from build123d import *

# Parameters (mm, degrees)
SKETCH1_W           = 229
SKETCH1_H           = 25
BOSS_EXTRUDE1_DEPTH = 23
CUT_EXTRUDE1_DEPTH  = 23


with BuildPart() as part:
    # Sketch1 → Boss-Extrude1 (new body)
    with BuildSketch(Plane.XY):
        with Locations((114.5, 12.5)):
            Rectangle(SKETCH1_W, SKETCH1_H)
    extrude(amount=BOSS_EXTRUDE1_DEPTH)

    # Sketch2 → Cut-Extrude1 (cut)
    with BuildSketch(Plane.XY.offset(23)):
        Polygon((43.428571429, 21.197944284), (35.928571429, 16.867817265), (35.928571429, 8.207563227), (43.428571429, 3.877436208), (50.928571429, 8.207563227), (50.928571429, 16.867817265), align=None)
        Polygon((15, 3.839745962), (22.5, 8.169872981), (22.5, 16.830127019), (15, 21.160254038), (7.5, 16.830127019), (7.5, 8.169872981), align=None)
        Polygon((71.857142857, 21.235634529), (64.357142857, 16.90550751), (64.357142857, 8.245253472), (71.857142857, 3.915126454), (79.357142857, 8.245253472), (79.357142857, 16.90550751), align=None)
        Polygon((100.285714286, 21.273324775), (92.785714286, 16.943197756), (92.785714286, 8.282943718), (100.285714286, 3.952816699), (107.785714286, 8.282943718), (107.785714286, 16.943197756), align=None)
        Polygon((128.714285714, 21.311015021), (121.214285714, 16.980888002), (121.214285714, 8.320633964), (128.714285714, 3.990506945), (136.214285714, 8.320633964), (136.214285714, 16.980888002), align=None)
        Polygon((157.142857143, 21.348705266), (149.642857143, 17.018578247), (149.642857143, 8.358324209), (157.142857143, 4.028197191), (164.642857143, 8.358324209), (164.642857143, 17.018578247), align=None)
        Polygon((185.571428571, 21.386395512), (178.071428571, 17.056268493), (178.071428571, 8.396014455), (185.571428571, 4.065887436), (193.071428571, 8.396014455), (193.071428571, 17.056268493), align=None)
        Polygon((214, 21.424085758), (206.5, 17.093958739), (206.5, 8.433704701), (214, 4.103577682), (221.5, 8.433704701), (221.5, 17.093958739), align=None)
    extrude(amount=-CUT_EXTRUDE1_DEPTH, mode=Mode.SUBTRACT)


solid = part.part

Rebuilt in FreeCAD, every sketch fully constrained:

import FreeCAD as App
import Part
import Sketcher
Q = App.Units.Quantity


def add_polygon(sketch, points):
    """Adds a closed chain of lines whose ends are joined by coincident constraints."""
    first, n = sketch.GeometryCount, len(points)
    for a, b in zip(points, points[1:] + points[:1]):
        sketch.addGeometry(Part.LineSegment(App.Vector(*a, 0), App.Vector(*b, 0)), False)
    for i in range(n):
        sketch.addConstraint(Sketcher.Constraint("Coincident", first + i, 2, first + (i + 1) % n, 1))

doc = App.newDocument("Part")
body = doc.addObject("PartDesign::Body", "Body")

sketch1 = doc.addObject("Sketcher::SketchObject", "Sketch")
body.addObject(sketch1)
sketch1.AttachmentSupport = (doc.XY_Plane, [""])
sketch1.MapMode = "FlatFace"
add_polygon(sketch1, [(0, 25), (0, 0), (229, 0), (229, 25)])
sketch1.addConstraint([
    Sketcher.Constraint("Vertical", 0),
    Sketcher.Constraint("Horizontal", 1),
    Sketcher.Constraint("Vertical", 2),
    Sketcher.Constraint("Horizontal", 3),
    Sketcher.Constraint("Coincident", 0, 2, -1, 1),
    Sketcher.Constraint("DistanceX", 1, 1, 1, 2, Q("229 mm")),
    Sketcher.Constraint("DistanceY", 0, 2, 0, 1, Q("25 mm")),
])
pad1 = doc.addObject("PartDesign::Pad", "Pad")
body.addObject(pad1)
pad1.Profile = sketch1
pad1.Length = 23

sketch2 = doc.addObject("Sketcher::SketchObject", "Sketch001")
body.addObject(sketch2)
sketch2.AttachmentSupport = (doc.XY_Plane, [""])
sketch2.MapMode = "FlatFace"
sketch2.AttachmentOffset = App.Placement(App.Vector(0, 0, 23), App.Rotation())
add_polygon(sketch2, [(43, 21), (36, 17), (36, 8), (43, 4), (51, 8), (51, 17)])
add_polygon(sketch2, [(15, 4), (22, 8), (22, 17), (15, 21), (8, 17), (8, 8)])
add_polygon(sketch2, [(72, 21), (64, 17), (64, 8), (72, 4), (79, 8), (79, 17)])
add_polygon(sketch2, [(100, 21), (93, 17), (93, 8), (100, 4), (108, 8), (108, 17)])
add_polygon(sketch2, [(129, 21), (121, 17), (121, 8), (129, 4), (136, 8), (136, 17)])
add_polygon(sketch2, [(157, 21), (150, 17), (150, 8), (157, 4), (165, 8), (165, 17)])
add_polygon(sketch2, [(186, 21), (178, 17), (178, 8), (186, 4), (193, 8), (193, 17)])
add_polygon(sketch2, [(214, 21), (206, 17), (206, 8), (214, 4), (222, 8), (222, 17)])
sketch2.addConstraint([
    Sketcher.Constraint("Vertical", 1),
    Sketcher.Constraint("Vertical", 4),
    Sketcher.Constraint("Vertical", 7),
    Sketcher.Constraint("Vertical", 10),
    Sketcher.Constraint("Vertical", 13),
    Sketcher.Constraint("Vertical", 16),
    Sketcher.Constraint("Vertical", 19),
    Sketcher.Constraint("Vertical", 22),
    Sketcher.Constraint("Vertical", 25),
    Sketcher.Constraint("Vertical", 28),
    Sketcher.Constraint("Vertical", 31),
    Sketcher.Constraint("Vertical", 34),
    Sketcher.Constraint("Vertical", 37),
    Sketcher.Constraint("Vertical", 40),
    Sketcher.Constraint("Vertical", 43),
    Sketcher.Constraint("Vertical", 46),
    Sketcher.Constraint("Parallel", 0, 3),
    Sketcher.Constraint("Parallel", 2, 5),
    Sketcher.Constraint("Parallel", 3, 6),
    Sketcher.Constraint("Parallel", 5, 8),
    Sketcher.Constraint("Parallel", 6, 9),
    Sketcher.Constraint("Parallel", 8, 11),
    Sketcher.Constraint("Parallel", 9, 12),
    Sketcher.Constraint("Parallel", 11, 14),
    Sketcher.Constraint("Parallel", 12, 15),
    Sketcher.Constraint("Parallel", 14, 17),
    Sketcher.Constraint("Parallel", 15, 18),
    Sketcher.Constraint("Parallel", 17, 20),
    Sketcher.Constraint("Parallel", 18, 21),
    Sketcher.Constraint("Parallel", 20, 23),
    Sketcher.Constraint("Parallel", 21, 24),
    Sketcher.Constraint("Parallel", 23, 26),
    Sketcher.Constraint("Parallel", 24, 27),
    Sketcher.Constraint("Parallel", 26, 29),
    Sketcher.Constraint("Parallel", 27, 30),
    Sketcher.Constraint("Parallel", 29, 32),
    Sketcher.Constraint("Parallel", 30, 33),
    Sketcher.Constraint("Parallel", 32, 35),
    Sketcher.Constraint("Parallel", 33, 36),
    Sketcher.Constraint("Parallel", 35, 38),
    Sketcher.Constraint("Parallel", 36, 39),
    Sketcher.Constraint("Parallel", 38, 41),
    Sketcher.Constraint("Parallel", 39, 42),
    Sketcher.Constraint("Parallel", 41, 44),
    Sketcher.Constraint("Parallel", 42, 45),
    Sketcher.Constraint("Parallel", 44, 47),
    Sketcher.Constraint("Horizontal", 1, 2, 3, 2),
    Sketcher.Constraint("Horizontal", 0, 2, 4, 2),
    Sketcher.Constraint("Horizontal", 7, 2, 9, 2),
    Sketcher.Constraint("Horizontal", 6, 2, 10, 2),
    Sketcher.Constraint("Horizontal", 13, 2, 15, 2),
    Sketcher.Constraint("Horizontal", 12, 2, 16, 2),
    Sketcher.Constraint("Horizontal", 19, 2, 21, 2),
    Sketcher.Constraint("Horizontal", 18, 2, 22, 2),
    Sketcher.Constraint("Horizontal", 25, 2, 27, 2),
    Sketcher.Constraint("Horizontal", 24, 2, 28, 2),
    Sketcher.Constraint("Horizontal", 31, 2, 33, 2),
    Sketcher.Constraint("Horizontal", 30, 2, 34, 2),
    Sketcher.Constraint("Horizontal", 37, 2, 39, 2),
    Sketcher.Constraint("Horizontal", 36, 2, 40, 2),
    Sketcher.Constraint("Horizontal", 43, 2, 45, 2),
    Sketcher.Constraint("Horizontal", 42, 2, 46, 2),
    Sketcher.Constraint("Vertical", 2, 2, 5, 2),
    Sketcher.Constraint("Equal", 4, 7),
    Sketcher.Constraint("Equal", 10, 13),
    Sketcher.Constraint("Equal", 16, 19),
    Sketcher.Constraint("Equal", 22, 25),
    Sketcher.Constraint("Equal", 28, 31),
    Sketcher.Constraint("Equal", 34, 37),
    Sketcher.Constraint("Equal", 40, 43),
    Sketcher.Constraint("Equal", 5, 6),
    Sketcher.Constraint("Equal", 11, 12),
    Sketcher.Constraint("Equal", 17, 18),
    Sketcher.Constraint("Equal", 23, 24),
    Sketcher.Constraint("Equal", 29, 30),
    Sketcher.Constraint("Equal", 35, 36),
    Sketcher.Constraint("Equal", 41, 42),
    Sketcher.Constraint("Angle", 0, Q("-150 deg")),
    Sketcher.Constraint("DistanceX", -1, 1, 8, 2, Q("15 mm")),
    Sketcher.Constraint("DistanceX", -1, 1, 44, 2, Q("214 mm")),
    Sketcher.Constraint("DistanceX", 1, 2, 3, 2, Q("15 mm")),
    Sketcher.Constraint("DistanceY", 1, 2, 1, 1, Q("8.660254 mm")),
    Sketcher.Constraint("DistanceX", -1, 1, 0, 2, Q("35.928571 mm")),
    Sketcher.Constraint("DistanceY", -1, 1, 24, 2, Q("16.980888 mm")),
    Sketcher.Constraint("DistanceY", -1, 1, 30, 2, Q("17.018578 mm")),
    Sketcher.Constraint("DistanceX", -1, 1, 36, 2, Q("178.071429 mm")),
    Sketcher.Constraint("DistanceY", -1, 1, 36, 2, Q("17.056268 mm")),
    Sketcher.Constraint("DistanceY", -1, 1, 42, 2, Q("17.093959 mm")),
    Sketcher.Constraint("DistanceY", 6, 2, 1, 2, Q("0.03769 mm")),
    Sketcher.Constraint("DistanceX", 4, 2, 12, 2, Q("13.428571 mm")),
    Sketcher.Constraint("DistanceY", 4, 2, 12, 2, Q("0.03769 mm")),
    Sketcher.Constraint("DistanceX", 16, 2, 18, 2, Q("13.428571 mm")),
    Sketcher.Constraint("DistanceY", 16, 2, 18, 2, Q("0.03769 mm")),
    Sketcher.Constraint("DistanceX", 22, 2, 24, 2, Q("13.428571 mm")),
    Sketcher.Constraint("DistanceY", 22, 2, 24, 2, Q("0.03769 mm")),
    Sketcher.Constraint("DistanceX", 28, 2, 30, 2, Q("13.428571 mm")),
])
pocket1 = doc.addObject("PartDesign::Pocket", "Pocket")
body.addObject(pocket1)
pocket1.Profile = sketch2
pocket1.Length = 23

doc.recompute()
